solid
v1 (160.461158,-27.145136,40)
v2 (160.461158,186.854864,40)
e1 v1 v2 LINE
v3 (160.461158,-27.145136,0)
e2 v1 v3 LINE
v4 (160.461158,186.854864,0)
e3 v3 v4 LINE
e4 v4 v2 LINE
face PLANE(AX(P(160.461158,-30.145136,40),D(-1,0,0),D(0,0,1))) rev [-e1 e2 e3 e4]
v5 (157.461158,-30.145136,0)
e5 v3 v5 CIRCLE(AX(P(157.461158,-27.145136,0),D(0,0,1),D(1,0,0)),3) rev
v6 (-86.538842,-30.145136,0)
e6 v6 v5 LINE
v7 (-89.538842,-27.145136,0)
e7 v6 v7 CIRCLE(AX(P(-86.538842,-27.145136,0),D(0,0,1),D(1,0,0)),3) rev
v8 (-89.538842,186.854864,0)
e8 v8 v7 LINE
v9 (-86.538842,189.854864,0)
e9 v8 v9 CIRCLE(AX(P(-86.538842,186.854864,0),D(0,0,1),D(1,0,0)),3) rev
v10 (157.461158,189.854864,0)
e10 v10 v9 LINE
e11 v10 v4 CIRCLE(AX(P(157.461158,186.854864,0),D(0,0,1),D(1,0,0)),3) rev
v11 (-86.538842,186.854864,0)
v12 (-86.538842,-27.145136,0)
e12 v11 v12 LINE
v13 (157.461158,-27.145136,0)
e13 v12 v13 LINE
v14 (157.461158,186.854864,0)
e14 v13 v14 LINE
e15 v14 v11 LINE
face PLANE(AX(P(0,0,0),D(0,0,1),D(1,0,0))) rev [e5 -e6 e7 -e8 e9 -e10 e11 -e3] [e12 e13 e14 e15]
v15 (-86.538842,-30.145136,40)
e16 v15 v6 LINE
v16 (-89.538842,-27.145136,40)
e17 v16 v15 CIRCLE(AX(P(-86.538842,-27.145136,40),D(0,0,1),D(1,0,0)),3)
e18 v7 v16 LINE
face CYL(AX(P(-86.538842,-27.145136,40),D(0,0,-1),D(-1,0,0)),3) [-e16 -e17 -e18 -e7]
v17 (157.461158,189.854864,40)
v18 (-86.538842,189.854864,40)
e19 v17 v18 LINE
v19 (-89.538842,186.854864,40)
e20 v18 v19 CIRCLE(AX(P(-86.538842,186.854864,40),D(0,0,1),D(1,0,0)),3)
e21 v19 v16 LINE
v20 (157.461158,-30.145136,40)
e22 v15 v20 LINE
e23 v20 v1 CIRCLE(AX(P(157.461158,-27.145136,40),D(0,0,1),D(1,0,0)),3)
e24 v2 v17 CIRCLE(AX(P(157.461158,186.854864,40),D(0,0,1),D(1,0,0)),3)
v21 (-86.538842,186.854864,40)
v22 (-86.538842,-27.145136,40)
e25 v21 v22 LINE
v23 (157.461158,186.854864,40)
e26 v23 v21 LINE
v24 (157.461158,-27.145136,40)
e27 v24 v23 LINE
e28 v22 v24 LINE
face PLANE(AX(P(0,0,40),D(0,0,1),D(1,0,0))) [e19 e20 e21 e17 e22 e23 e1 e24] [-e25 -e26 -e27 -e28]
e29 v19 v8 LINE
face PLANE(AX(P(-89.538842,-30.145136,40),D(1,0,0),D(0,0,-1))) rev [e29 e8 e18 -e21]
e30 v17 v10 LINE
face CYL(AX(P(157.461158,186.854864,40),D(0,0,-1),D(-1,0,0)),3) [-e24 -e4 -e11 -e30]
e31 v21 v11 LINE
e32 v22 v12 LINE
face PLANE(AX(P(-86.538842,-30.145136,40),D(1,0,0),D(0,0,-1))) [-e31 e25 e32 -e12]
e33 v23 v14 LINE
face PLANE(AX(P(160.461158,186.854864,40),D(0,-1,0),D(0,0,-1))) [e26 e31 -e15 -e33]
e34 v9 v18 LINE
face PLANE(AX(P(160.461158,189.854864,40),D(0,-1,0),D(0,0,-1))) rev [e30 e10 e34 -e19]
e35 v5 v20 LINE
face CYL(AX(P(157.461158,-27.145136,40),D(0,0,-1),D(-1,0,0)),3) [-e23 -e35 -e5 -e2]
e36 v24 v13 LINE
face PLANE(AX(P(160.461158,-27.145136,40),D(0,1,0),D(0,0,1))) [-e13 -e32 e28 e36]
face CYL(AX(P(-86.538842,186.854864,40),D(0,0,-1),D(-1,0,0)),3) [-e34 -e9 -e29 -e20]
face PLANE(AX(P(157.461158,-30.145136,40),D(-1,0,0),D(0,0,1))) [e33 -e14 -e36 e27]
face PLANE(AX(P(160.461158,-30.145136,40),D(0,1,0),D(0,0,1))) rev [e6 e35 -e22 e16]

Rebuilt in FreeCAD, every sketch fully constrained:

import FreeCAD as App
import Part
import Sketcher
Q = App.Units.Quantity


def edges_at(feature, points):
    """Names of the edges that pass closest to the given points."""
    edges = feature.Shape.Edges
    near = lambda p: min(range(len(edges)), key=lambda i: edges[i].distToShape(Part.Vertex(*p))[0])
    return sorted({f"Edge{near(p) + 1}" for p in points})


def add_polygon(sketch, points):
    """Adds a closed chain of lines whose ends are joined by coincident constraints."""
    first, n = sketch.GeometryCount, len(points)
    for a, b in zip(points, points[1:] + points[:1]):
        sketch.addGeometry(Part.LineSegment(App.Vector(*a, 0), App.Vector(*b, 0)), False)
    for i in range(n):
        sketch.addConstraint(Sketcher.Constraint("Coincident", first + i, 2, first + (i + 1) % n, 1))

doc = App.newDocument("Part")
body = doc.addObject("PartDesign::Body", "Body")

sketch1 = doc.addObject("Sketcher::SketchObject", "Sketch")
body.addObject(sketch1)
sketch1.AttachmentSupport = (doc.XY_Plane, [""])
sketch1.MapMode = "FlatFace"
add_polygon(sketch1, [(-89.538842, 189.854864), (-89.538842, -30.145136), (160.461158, -30.145136), (160.461158, 189.854864)])
add_polygon(sketch1, [(157.461158, -27.145136), (-86.538842, -27.145136), (-86.538842, 186.854864), (157.461158, 186.854864)])
sketch1.addConstraint([
    Sketcher.Constraint("Vertical", 0),
    Sketcher.Constraint("Horizontal", 1),
    Sketcher.Constraint("Vertical", 2),
    Sketcher.Constraint("Horizontal", 3),
    Sketcher.Constraint("Horizontal", 4),
    Sketcher.Constraint("Vertical", 5),
    Sketcher.Constraint("Horizontal", 6),
    Sketcher.Constraint("Vertical", 7),
    Sketcher.Constraint("DistanceX", 1, 1, 1, 2, Q("250 mm")),
    Sketcher.Constraint("DistanceX", 4, 2, 4, 1, Q("244 mm")),
    Sketcher.Constraint("DistanceY", 0, 2, 0, 1, Q("220 mm")),
    Sketcher.Constraint("DistanceY", 5, 1, 5, 2, Q("214 mm")),
    Sketcher.Constraint("DistanceX", 0, 2, 4, 2, Q("3 mm")),
    Sketcher.Constraint("DistanceY", 0, 2, 4, 2, Q("3 mm")),
    Sketcher.Constraint("DistanceX", 0, 2, -1, 1, Q("89.538842 mm")),
    Sketcher.Constraint("DistanceY", 0, 2, -1, 1, Q("30.145136 mm")),
])
pad1 = doc.addObject("PartDesign::Pad", "Pad")
body.addObject(pad1)
pad1.Profile = sketch1
pad1.Length = 40
doc.recompute()

fillet = doc.addObject("PartDesign::Fillet", "Fillet")
body.addObject(fillet)
fillet.Base = (pad1, edges_at(pad1, [
    (160.461, -30.145, 20),
    (-89.539, -30.145, 20),
    (-89.539, 189.855, 20),
    (160.461, 189.855, 20),
]))
fillet.Radius = 3

doc.recompute()
